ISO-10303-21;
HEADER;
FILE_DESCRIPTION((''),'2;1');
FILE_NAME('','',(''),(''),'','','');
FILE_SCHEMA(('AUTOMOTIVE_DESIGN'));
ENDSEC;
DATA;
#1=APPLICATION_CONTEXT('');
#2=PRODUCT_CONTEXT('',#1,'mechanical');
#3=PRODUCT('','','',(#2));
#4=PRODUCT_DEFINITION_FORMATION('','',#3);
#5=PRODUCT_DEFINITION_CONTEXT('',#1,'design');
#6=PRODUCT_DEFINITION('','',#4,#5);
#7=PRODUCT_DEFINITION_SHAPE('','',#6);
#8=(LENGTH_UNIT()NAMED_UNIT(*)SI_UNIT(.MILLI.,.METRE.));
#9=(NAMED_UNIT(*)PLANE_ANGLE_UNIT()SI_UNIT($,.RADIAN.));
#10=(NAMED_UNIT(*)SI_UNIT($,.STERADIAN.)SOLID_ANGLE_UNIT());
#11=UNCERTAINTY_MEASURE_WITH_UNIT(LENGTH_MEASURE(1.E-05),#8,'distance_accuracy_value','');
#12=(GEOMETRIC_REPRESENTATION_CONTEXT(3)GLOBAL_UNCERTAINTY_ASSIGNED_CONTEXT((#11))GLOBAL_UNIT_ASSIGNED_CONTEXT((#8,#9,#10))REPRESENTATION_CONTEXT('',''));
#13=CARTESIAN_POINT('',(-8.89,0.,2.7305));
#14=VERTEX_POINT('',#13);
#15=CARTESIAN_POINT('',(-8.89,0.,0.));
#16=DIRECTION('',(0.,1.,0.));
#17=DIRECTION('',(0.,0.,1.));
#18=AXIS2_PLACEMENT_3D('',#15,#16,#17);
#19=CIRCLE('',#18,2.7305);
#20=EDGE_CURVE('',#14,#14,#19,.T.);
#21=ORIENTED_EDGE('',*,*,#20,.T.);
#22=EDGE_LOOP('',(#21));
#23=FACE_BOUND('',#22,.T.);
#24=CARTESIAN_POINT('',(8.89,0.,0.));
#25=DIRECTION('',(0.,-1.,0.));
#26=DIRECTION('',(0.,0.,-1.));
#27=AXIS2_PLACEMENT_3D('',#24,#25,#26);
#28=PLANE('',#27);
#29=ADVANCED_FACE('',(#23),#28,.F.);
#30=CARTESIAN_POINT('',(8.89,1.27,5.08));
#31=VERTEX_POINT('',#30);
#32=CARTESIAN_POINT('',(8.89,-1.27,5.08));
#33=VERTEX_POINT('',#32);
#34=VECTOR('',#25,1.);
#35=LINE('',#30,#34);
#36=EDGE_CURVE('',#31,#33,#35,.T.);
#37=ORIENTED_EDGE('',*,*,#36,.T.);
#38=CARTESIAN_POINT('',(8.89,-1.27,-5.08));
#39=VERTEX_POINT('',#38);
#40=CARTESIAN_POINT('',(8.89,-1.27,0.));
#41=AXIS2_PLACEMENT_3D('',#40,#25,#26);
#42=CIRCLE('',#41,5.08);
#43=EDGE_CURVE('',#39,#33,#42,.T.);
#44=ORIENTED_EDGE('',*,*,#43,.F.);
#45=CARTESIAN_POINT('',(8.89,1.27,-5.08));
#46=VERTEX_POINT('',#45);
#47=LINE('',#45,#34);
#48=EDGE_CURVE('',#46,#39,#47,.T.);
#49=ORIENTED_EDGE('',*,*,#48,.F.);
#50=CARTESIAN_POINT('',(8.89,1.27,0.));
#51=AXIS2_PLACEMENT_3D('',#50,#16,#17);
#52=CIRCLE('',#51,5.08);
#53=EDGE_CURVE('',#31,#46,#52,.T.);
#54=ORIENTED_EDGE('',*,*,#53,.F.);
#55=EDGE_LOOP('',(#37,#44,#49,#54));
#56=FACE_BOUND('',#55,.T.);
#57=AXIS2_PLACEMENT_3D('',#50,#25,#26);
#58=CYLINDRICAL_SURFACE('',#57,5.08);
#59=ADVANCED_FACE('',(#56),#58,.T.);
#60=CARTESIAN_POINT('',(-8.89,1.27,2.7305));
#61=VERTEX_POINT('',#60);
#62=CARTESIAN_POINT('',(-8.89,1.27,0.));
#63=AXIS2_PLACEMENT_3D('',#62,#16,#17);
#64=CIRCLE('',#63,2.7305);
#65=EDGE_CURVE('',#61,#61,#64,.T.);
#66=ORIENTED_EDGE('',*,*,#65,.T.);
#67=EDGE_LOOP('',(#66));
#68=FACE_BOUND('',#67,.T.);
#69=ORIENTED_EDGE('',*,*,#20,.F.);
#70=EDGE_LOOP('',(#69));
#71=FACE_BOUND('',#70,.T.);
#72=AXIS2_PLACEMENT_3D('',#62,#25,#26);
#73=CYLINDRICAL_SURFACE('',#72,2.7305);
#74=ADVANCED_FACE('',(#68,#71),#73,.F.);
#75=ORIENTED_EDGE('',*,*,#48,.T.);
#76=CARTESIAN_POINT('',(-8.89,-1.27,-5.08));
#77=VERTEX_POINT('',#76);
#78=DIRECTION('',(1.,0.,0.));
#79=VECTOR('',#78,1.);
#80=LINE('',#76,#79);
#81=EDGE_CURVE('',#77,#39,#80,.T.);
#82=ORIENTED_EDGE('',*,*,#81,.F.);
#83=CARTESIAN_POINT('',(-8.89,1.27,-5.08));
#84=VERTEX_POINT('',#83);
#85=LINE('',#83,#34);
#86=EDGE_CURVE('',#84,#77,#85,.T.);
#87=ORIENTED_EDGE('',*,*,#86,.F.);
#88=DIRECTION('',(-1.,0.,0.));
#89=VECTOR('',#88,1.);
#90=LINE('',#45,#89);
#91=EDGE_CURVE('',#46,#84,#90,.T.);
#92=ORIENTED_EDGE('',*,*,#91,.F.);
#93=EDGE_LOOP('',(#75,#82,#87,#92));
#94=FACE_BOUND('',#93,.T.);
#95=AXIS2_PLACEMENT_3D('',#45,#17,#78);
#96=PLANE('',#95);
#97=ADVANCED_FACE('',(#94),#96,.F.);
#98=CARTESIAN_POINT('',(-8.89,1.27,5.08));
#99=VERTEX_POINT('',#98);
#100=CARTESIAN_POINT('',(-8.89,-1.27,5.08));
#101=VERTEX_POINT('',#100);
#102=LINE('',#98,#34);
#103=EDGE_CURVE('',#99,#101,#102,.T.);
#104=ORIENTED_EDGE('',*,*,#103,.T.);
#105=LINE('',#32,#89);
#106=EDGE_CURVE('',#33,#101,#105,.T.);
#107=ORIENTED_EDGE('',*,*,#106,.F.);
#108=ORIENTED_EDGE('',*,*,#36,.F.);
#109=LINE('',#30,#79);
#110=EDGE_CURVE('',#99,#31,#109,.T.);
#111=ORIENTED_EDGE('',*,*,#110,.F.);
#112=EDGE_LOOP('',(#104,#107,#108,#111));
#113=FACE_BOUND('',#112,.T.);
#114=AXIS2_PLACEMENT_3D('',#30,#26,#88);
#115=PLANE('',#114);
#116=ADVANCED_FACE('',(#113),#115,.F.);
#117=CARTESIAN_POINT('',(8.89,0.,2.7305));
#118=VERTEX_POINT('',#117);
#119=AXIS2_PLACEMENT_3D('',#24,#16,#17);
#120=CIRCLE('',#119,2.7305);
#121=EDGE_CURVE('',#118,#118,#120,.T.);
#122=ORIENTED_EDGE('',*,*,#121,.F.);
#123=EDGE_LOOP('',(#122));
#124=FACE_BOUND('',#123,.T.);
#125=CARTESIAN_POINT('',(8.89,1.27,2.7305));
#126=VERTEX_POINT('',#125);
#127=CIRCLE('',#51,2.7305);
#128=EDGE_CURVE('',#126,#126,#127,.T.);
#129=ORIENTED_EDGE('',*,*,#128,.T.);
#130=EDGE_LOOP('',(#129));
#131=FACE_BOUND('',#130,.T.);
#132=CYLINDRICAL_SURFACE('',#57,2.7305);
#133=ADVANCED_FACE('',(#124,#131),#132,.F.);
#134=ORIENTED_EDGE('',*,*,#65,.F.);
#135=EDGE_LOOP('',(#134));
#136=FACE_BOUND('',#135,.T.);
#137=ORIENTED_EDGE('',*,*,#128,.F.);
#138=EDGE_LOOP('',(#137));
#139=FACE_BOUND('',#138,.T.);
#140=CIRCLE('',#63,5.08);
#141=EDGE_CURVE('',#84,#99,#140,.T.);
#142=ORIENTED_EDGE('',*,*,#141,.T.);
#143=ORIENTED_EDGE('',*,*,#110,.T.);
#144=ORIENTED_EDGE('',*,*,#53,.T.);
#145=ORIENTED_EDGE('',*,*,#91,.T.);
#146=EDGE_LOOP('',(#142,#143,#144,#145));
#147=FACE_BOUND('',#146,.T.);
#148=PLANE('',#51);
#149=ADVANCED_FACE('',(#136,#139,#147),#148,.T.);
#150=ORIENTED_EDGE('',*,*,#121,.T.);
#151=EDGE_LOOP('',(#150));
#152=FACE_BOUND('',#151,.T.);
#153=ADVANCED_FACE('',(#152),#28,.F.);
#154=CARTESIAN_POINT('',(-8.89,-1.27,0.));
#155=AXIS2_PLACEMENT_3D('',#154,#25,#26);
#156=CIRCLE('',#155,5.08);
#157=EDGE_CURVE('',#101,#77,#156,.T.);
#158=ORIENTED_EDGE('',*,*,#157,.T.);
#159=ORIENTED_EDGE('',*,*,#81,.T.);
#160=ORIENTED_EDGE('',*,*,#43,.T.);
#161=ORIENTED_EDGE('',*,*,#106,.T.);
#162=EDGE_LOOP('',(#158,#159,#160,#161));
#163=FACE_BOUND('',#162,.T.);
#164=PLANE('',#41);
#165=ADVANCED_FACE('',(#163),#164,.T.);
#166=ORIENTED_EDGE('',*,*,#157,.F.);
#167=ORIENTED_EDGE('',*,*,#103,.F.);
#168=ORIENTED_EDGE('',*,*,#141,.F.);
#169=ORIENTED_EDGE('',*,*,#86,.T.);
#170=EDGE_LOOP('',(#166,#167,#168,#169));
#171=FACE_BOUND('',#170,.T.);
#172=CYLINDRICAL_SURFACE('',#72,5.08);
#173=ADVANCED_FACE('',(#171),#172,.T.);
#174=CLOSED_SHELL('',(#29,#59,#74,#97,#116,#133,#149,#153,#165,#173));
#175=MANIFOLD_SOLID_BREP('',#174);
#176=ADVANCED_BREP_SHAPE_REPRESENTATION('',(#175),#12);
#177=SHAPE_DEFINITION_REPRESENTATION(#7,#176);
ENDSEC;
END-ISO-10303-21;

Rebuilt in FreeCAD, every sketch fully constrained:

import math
import FreeCAD as App
import Part
import Sketcher
from FreeCAD import Vector
Q = App.Units.Quantity

doc = App.newDocument("Part")
body = doc.addObject("PartDesign::Body", "Body")

# Sketch on XZ plane
sketch1 = body.newObject("Sketcher::SketchObject", "Sketch")
sketch1.AttachmentSupport = (doc.getObject("XZ_Plane"), [""])
sketch1.MapMode = "FlatFace"
sketch1.addGeometry([
    Part.LineSegment(Vector(-8.9, 5.1, 0), Vector(8.9, 5.1, 0)),  # 0
    Part.ArcOfCircle(Part.Circle(Vector(8.9, 0, 0), Vector(0, 0, 1), 5.1), math.radians(-90), math.radians(90)),  # 1
    Part.LineSegment(Vector(8.9, -5.1, 0), Vector(-8.9, -5.1, 0)),  # 2
    Part.ArcOfCircle(Part.Circle(Vector(-8.9, 0, 0), Vector(0, 0, 1), 5.1), math.radians(90), math.radians(270)),  # 3
    Part.Circle(Vector(8.9, 0, 0), Vector(0, 0, 1), 2.7),  # 4
    Part.Circle(Vector(-8.9, 0, 0), Vector(0, 0, 1), 2.7),  # 5
], False)
sketch1.addConstraint([
    Sketcher.Constraint("Tangent", 0, 2, 1, 2),
    Sketcher.Constraint("Tangent", 1, 1, 2, 1),
    Sketcher.Constraint("Tangent", 2, 2, 3, 2),
    Sketcher.Constraint("Tangent", 3, 1, 0, 1),
    Sketcher.Constraint("Horizontal", 0),
    Sketcher.Constraint("Horizontal", 2),
    Sketcher.Constraint("Coincident", 4, 3, 1, 3),
    Sketcher.Constraint("Coincident", 5, 3, 3, 3),
    Sketcher.Constraint("Equal", 4, 5),
    Sketcher.Constraint("Symmetric", 1, 3, 3, 3, -1, 1),
    Sketcher.Constraint("Radius", 1, Q("0.2 in")),
    Sketcher.Constraint("Diameter", 4, Q("0.215 in")),
    Sketcher.Constraint("DistanceX", 0, 1, 0, 2, Q("0.7 in")),
])
pad1 = body.newObject("PartDesign::Pad", "Pad")
pad1.Profile = sketch1
pad1.Length = Q("0.05 in")
pad1.Reversed = True

# Sketch on XZ plane
sketch2 = body.newObject("Sketcher::SketchObject", "Sketch001")
sketch2.AttachmentSupport = (doc.getObject("XZ_Plane"), [""])
sketch2.MapMode = "FlatFace"
sketch2.AttachmentOffset = App.Placement(Vector(0, 0, 0.05 * 25.4), App.Rotation())
sketch2.addGeometry([
    Part.LineSegment(Vector(9, 5, 0), Vector(-9, 5, 0)),
    Part.ArcOfCircle(Part.Circle(Vector(-9, 0, 0), Vector(0, 0, 1), 5), math.radians(90), math.radians(270)),
    Part.LineSegment(Vector(-9, -5, 0), Vector(9, -5, 0)),
    Part.ArcOfCircle(Part.Circle(Vector(9, 0, 0), Vector(0, 0, 1), 5), math.radians(-90), math.radians(90)),
], False)
sketch2.addConstraint([
    Sketcher.Constraint("Tangent", 0, 2, 1, 1),
    Sketcher.Constraint("Tangent", 1, 2, 2, 1),
    Sketcher.Constraint("Tangent", 2, 2, 3, 1),
    Sketcher.Constraint("Tangent", 3, 2, 0, 1),
    Sketcher.Constraint("Horizontal", 0),
    Sketcher.Constraint("Horizontal", 2),
    Sketcher.Constraint("Symmetric", 1, 3, 3, 3, -1, 1),
    Sketcher.Constraint("Radius", 1, Q("0.2 in")),
    Sketcher.Constraint("DistanceX", 0, 2, 0, 1, Q("0.7 in")),
])
pad2 = body.newObject("PartDesign::Pad", "Pad001")
pad2.Profile = sketch2
pad2.Length = Q("0.05 in")
pad2.Reversed = True

doc.recompute()
